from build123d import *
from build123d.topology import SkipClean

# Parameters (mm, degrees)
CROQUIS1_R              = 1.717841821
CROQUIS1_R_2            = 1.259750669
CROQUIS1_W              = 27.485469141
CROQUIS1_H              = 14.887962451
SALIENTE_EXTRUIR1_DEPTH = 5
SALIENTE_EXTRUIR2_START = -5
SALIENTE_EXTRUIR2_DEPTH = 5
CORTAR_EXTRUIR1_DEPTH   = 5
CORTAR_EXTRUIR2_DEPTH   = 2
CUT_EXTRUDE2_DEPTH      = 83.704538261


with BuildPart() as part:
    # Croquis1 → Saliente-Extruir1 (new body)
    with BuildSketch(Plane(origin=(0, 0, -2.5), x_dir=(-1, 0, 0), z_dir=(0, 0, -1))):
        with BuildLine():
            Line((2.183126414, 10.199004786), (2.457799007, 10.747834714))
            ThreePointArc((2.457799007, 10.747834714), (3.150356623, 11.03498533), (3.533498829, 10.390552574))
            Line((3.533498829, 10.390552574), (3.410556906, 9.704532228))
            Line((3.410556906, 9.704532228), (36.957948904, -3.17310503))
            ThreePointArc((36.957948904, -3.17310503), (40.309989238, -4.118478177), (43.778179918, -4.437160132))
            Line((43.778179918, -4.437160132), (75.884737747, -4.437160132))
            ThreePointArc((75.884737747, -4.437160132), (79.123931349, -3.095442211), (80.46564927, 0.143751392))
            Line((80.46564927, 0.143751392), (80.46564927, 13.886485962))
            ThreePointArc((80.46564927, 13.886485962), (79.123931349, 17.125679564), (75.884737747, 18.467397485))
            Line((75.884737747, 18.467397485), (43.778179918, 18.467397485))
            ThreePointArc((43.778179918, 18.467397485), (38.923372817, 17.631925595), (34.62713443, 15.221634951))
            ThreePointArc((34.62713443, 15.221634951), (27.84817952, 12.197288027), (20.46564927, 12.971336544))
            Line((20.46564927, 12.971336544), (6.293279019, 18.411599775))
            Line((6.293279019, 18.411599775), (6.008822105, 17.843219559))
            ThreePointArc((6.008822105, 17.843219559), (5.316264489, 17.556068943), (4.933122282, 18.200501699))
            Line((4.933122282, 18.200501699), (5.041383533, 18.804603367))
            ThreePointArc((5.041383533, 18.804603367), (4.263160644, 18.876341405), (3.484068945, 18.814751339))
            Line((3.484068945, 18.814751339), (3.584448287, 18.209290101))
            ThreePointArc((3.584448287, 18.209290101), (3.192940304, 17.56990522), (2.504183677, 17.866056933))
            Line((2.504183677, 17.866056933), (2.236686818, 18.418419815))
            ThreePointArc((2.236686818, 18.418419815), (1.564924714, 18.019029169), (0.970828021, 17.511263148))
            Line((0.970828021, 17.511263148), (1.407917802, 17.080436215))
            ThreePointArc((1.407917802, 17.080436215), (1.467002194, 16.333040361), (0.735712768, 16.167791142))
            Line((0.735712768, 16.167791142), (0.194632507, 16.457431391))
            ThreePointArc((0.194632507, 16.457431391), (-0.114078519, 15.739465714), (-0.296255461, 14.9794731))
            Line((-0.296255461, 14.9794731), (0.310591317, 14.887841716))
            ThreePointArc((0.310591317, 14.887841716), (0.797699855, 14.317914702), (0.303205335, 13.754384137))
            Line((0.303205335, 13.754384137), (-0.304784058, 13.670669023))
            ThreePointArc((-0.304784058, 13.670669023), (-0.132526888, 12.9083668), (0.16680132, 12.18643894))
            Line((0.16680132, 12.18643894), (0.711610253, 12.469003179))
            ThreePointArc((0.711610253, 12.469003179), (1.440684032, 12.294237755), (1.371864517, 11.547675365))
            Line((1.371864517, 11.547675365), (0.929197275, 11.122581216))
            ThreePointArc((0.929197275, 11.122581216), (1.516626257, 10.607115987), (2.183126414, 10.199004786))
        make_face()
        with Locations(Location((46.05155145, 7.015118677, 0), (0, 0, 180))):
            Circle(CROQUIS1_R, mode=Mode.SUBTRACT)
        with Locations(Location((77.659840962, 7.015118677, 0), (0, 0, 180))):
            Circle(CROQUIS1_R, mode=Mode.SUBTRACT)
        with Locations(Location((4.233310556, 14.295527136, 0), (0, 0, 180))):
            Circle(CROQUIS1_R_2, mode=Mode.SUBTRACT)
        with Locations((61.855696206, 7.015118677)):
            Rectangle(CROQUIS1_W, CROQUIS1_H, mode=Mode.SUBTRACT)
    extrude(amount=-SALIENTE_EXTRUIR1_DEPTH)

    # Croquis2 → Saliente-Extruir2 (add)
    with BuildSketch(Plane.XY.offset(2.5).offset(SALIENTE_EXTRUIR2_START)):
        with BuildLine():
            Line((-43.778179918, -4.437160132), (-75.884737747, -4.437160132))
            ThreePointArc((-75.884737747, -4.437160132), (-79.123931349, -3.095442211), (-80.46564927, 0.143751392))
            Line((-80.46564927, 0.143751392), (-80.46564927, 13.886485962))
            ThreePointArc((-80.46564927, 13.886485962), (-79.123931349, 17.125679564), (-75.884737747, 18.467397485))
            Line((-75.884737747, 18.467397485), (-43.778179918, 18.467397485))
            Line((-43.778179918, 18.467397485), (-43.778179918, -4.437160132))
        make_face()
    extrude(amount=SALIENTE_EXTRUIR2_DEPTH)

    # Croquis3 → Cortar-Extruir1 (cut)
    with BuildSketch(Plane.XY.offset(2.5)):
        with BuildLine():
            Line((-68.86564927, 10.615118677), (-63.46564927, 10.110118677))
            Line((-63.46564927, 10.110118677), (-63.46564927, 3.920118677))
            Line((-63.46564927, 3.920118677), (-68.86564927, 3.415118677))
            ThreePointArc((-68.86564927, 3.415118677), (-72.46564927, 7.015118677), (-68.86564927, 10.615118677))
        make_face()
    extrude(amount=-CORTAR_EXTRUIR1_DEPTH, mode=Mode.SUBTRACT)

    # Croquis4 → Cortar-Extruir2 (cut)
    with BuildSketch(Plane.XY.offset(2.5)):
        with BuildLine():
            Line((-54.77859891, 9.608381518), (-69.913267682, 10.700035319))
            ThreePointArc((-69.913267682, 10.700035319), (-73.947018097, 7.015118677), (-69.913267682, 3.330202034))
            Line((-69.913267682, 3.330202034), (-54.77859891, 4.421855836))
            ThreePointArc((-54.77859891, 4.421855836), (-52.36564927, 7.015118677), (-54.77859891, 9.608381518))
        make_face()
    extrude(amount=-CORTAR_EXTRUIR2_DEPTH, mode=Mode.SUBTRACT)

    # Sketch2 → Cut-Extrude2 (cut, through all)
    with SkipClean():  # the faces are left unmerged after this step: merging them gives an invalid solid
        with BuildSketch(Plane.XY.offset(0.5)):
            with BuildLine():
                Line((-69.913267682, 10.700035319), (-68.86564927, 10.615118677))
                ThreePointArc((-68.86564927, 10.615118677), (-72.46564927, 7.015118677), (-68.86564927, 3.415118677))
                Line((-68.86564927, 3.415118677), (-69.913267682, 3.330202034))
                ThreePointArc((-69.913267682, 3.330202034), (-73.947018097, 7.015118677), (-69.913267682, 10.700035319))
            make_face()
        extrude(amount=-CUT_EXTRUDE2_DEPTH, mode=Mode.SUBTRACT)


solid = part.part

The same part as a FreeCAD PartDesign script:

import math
import FreeCAD as App
import Part
import Sketcher
Q = App.Units.Quantity


def add_polygon(sketch, points):
    """Adds a closed chain of lines whose ends are joined by coincident constraints."""
    first, n = sketch.GeometryCount, len(points)
    for a, b in zip(points, points[1:] + points[:1]):
        sketch.addGeometry(Part.LineSegment(App.Vector(*a, 0), App.Vector(*b, 0)), False)
    for i in range(n):
        sketch.addConstraint(Sketcher.Constraint("Coincident", first + i, 2, first + (i + 1) % n, 1))

doc = App.newDocument("Part")
body = doc.addObject("PartDesign::Body", "Body")

# Sketch on XY plane
sketch1 = body.newObject("Sketcher::SketchObject", "Sketch")
sketch1.AttachmentSupport = (doc.getObject("XY_Plane"), [""])
sketch1.MapMode = "FlatFace"
sketch1.AttachmentOffset = App.Placement(App.Vector(0, 0, -2.5), App.Rotation())
sketch1.addGeometry(Part.LineSegment(App.Vector(-2.2, 10.2, 0), App.Vector(-2.5, 10.7, 0)), False)  # 0
sketch1.addGeometry(Part.ArcOfCircle(Part.Circle(App.Vector(-3, 10.5, 0), App.Vector(0, 0, 1), 0.6), math.radians(27), math.radians(190)), False)  # 1
sketch1.addGeometry(Part.LineSegment(App.Vector(-3.5, 10.4, 0), App.Vector(-3.4, 9.7, 0)), False)  # 2
sketch1.addGeometry(Part.LineSegment(App.Vector(-3.4, 9.7, 0), App.Vector(-37, -3.2, 0)), False)  # 3
sketch1.addGeometry(Part.ArcOfCircle(Part.Circle(App.Vector(-43.8, 14.6, 0), App.Vector(0, 0, 1), 19), math.radians(-90), math.radians(-69)), False)  # 4
sketch1.addGeometry(Part.LineSegment(App.Vector(-43.8, -4.4, 0), App.Vector(-75.9, -4.4, 0)), False)  # 5
sketch1.addGeometry(Part.ArcOfCircle(Part.Circle(App.Vector(-75.9, 0.1, 0), App.Vector(0, 0, 1), 4.6), math.radians(180), math.radians(270)), False)  # 6
sketch1.addGeometry(Part.LineSegment(App.Vector(-80.5, 0.1, 0), App.Vector(-80.5, 13.9, 0)), False)  # 7
sketch1.addGeometry(Part.ArcOfCircle(Part.Circle(App.Vector(-75.9, 13.9, 0), App.Vector(0, 0, 1), 4.6), math.radians(90), math.radians(180)), False)  # 8
sketch1.addGeometry(Part.LineSegment(App.Vector(-75.9, 18.5, 0), App.Vector(-43.8, 18.5, 0)), False)  # 9
sketch1.addGeometry(Part.ArcOfCircle(Part.Circle(App.Vector(-43.8, 3.9, 0), App.Vector(0, 0, 1), 14.5), math.radians(51), math.radians(90)), False)  # 10
sketch1.addGeometry(Part.ArcOfCircle(Part.Circle(App.Vector(-25.6, 26.3, 0), App.Vector(0, 0, 1), 14.3), math.radians(-129), math.radians(-69)), False)  # 11
sketch1.addGeometry(Part.LineSegment(App.Vector(-20.5, 13, 0), App.Vector(-6.3, 18.4, 0)), False)  # 12
sketch1.addGeometry(Part.LineSegment(App.Vector(-6.3, 18.4, 0), App.Vector(-6, 17.8, 0)), False)  # 13
sketch1.addGeometry(Part.ArcOfCircle(Part.Circle(App.Vector(-5.5, 18.1, 0), App.Vector(0, 0, 1), 0.6), math.radians(-153), math.radians(10)), False)  # 14
sketch1.addGeometry(Part.LineSegment(App.Vector(-4.9, 18.2, 0), App.Vector(-5, 18.8, 0)), False)  # 15
sketch1.addGeometry(Part.ArcOfCircle(Part.Circle(App.Vector(-4.2, 14.3, 0), App.Vector(0, 0, 1), 4.6), math.radians(80.59), math.radians(100.16)), False)  # 16
sketch1.addGeometry(Part.LineSegment(App.Vector(-3.5, 18.8, 0), App.Vector(-3.6, 18.2, 0)), False)  # 17
sketch1.addGeometry(Part.ArcOfCircle(Part.Circle(App.Vector(-3, 18.1, 0), App.Vector(0, 0, 1), 0.6), math.radians(171), math.radians(334)), False)  # 18
sketch1.addGeometry(Part.LineSegment(App.Vector(-2.5, 17.9, 0), App.Vector(-2.2, 18.4, 0)), False)  # 19
sketch1.addGeometry(Part.ArcOfCircle(Part.Circle(App.Vector(-4.2, 14.3, 0), App.Vector(0, 0, 1), 4.6), math.radians(44.59), math.radians(64.16)), False)  # 20
sketch1.addGeometry(Part.LineSegment(App.Vector(-1, 17.5, 0), App.Vector(-1.4, 17.1, 0)), False)  # 21
sketch1.addGeometry(Part.ArcOfCircle(Part.Circle(App.Vector(-1, 16.7, 0), App.Vector(0, 0, 1), 0.6), math.radians(135), math.radians(298)), False)  # 22
sketch1.addGeometry(Part.LineSegment(App.Vector(-0.7, 16.2, 0), App.Vector(-0.2, 16.5, 0)), False)  # 23
sketch1.addGeometry(Part.ArcOfCircle(Part.Circle(App.Vector(-4.2, 14.3, 0), App.Vector(0, 0, 1), 4.6), math.radians(8.59), math.radians(28.16)), False)  # 24
sketch1.addGeometry(Part.LineSegment(App.Vector(0.3, 15, 0), App.Vector(-0.3, 14.9, 0)), False)  # 25
sketch1.addGeometry(Part.ArcOfCircle(Part.Circle(App.Vector(-0.2, 14.3, 0), App.Vector(0, 0, 1), 0.6), math.radians(99), math.radians(262)), False)  # 26
sketch1.addGeometry(Part.LineSegment(App.Vector(-0.3, 13.8, 0), App.Vector(0.3, 13.7, 0)), False)  # 27
sketch1.addGeometry(Part.ArcOfCircle(Part.Circle(App.Vector(-4.2, 14.3, 0), App.Vector(0, 0, 1), 4.6), math.radians(-27.41), math.radians(-7.84)), False)  # 28
sketch1.addGeometry(Part.LineSegment(App.Vector(-0.2, 12.2, 0), App.Vector(-0.7, 12.5, 0)), False)  # 29
sketch1.addGeometry(Part.ArcOfCircle(Part.Circle(App.Vector(-1, 12, 0), App.Vector(0, 0, 1), 0.6), math.radians(63), math.radians(226)), False)  # 30
sketch1.addGeometry(Part.LineSegment(App.Vector(-1.4, 11.5, 0), App.Vector(-0.9, 11.1, 0)), False)  # 31
sketch1.addGeometry(Part.ArcOfCircle(Part.Circle(App.Vector(-4.2, 14.3, 0), App.Vector(0, 0, 1), 4.6), math.radians(-63.41), math.radians(-43.84)), False)  # 32
sketch1.addGeometry(Part.Circle(App.Vector(-46.1, 7, 0), App.Vector(0, 0, 1), 1.7), False)  # 33
add_polygon(sketch1, [(-75.6, -0.4), (-48.1, -0.4), (-48.1, 14.5), (-75.6, 14.5)])  # lines 34-37
sketch1.addGeometry(Part.Circle(App.Vector(-77.7, 7, 0), App.Vector(0, 0, 1), 1.7), False)  # 38
sketch1.addGeometry(Part.Circle(App.Vector(-4.2, 14.3, 0), App.Vector(0, 0, 1), 1.3), False)  # 39
sketch1.addConstraint(Sketcher.Constraint("Tangent", 0, 2, 1, 1))
sketch1.addConstraint(Sketcher.Constraint("Tangent", 1, 2, 2, 1))
sketch1.addConstraint(Sketcher.Constraint("Coincident", 2, 2, 3, 1))
sketch1.addConstraint(Sketcher.Constraint("Tangent", 3, 2, 4, 2))
sketch1.addConstraint(Sketcher.Constraint("Tangent", 4, 1, 5, 1))
sketch1.addConstraint(Sketcher.Constraint("Tangent", 5, 2, 6, 2))
sketch1.addConstraint(Sketcher.Constraint("Tangent", 6, 1, 7, 1))
sketch1.addConstraint(Sketcher.Constraint("Tangent", 7, 2, 8, 2))
sketch1.addConstraint(Sketcher.Constraint("Tangent", 8, 1, 9, 1))
sketch1.addConstraint(Sketcher.Constraint("Tangent", 9, 2, 10, 2))
sketch1.addConstraint(Sketcher.Constraint("Tangent", 10, 1, 11, 1))
sketch1.addConstraint(Sketcher.Constraint("Tangent", 11, 2, 12, 1))
sketch1.addConstraint(Sketcher.Constraint("Coincident", 12, 2, 13, 1))
sketch1.addConstraint(Sketcher.Constraint("Tangent", 13, 2, 14, 1))
sketch1.addConstraint(Sketcher.Constraint("Tangent", 14, 2, 15, 1))
sketch1.addConstraint(Sketcher.Constraint("Coincident", 15, 2, 16, 2))
sketch1.addConstraint(Sketcher.Constraint("Coincident", 16, 1, 17, 1))
sketch1.addConstraint(Sketcher.Constraint("Tangent", 17, 2, 18, 1))
sketch1.addConstraint(Sketcher.Constraint("Tangent", 18, 2, 19, 1))
sketch1.addConstraint(Sketcher.Constraint("Coincident", 19, 2, 20, 2))
sketch1.addConstraint(Sketcher.Constraint("Coincident", 20, 1, 21, 1))
sketch1.addConstraint(Sketcher.Constraint("Tangent", 21, 2, 22, 1))
sketch1.addConstraint(Sketcher.Constraint("Tangent", 22, 2, 23, 1))
sketch1.addConstraint(Sketcher.Constraint("Coincident", 23, 2, 24, 2))
sketch1.addConstraint(Sketcher.Constraint("Coincident", 24, 1, 25, 1))
sketch1.addConstraint(Sketcher.Constraint("Tangent", 25, 2, 26, 1))
sketch1.addConstraint(Sketcher.Constraint("Tangent", 26, 2, 27, 1))
sketch1.addConstraint(Sketcher.Constraint("Coincident", 27, 2, 28, 2))
sketch1.addConstraint(Sketcher.Constraint("Coincident", 28, 1, 29, 1))
sketch1.addConstraint(Sketcher.Constraint("Tangent", 29, 2, 30, 1))
sketch1.addConstraint(Sketcher.Constraint("Tangent", 30, 2, 31, 1))
sketch1.addConstraint(Sketcher.Constraint("Coincident", 31, 2, 32, 2))
sketch1.addConstraint(Sketcher.Constraint("Coincident", 32, 1, 0, 1))
sketch1.addConstraint(Sketcher.Constraint("Horizontal", 5))
sketch1.addConstraint(Sketcher.Constraint("Vertical", 7))
sketch1.addConstraint(Sketcher.Constraint("Horizontal", 9))
sketch1.addConstraint(Sketcher.Constraint("Horizontal", 34))
sketch1.addConstraint(Sketcher.Constraint("Vertical", 35))
sketch1.addConstraint(Sketcher.Constraint("Horizontal", 36))
sketch1.addConstraint(Sketcher.Constraint("Vertical", 37))
sketch1.addConstraint(Sketcher.Constraint("Coincident", 20, 3, 16, 3))
sketch1.addConstraint(Sketcher.Constraint("Coincident", 24, 3, 16, 3))
sketch1.addConstraint(Sketcher.Constraint("Coincident", 28, 3, 16, 3))
sketch1.addConstraint(Sketcher.Constraint("Coincident", 32, 3, 16, 3))
sketch1.addConstraint(Sketcher.Constraint("Coincident", 39, 3, 16, 3))
sketch1.addConstraint(Sketcher.Constraint("Equal", 6, 8))
sketch1.addConstraint(Sketcher.Constraint("Equal", 1, 14))
sketch1.addConstraint(Sketcher.Constraint("Equal", 8, 16))
sketch1.addConstraint(Sketcher.Constraint("Equal", 14, 18))
sketch1.addConstraint(Sketcher.Constraint("Equal", 16, 20))
sketch1.addConstraint(Sketcher.Constraint("Equal", 18, 22))
sketch1.addConstraint(Sketcher.Constraint("Equal", 20, 24))
sketch1.addConstraint(Sketcher.Constraint("Equal", 22, 26))
sketch1.addConstraint(Sketcher.Constraint("Equal", 24, 28))
sketch1.addConstraint(Sketcher.Constraint("Equal", 26, 30))
sketch1.addConstraint(Sketcher.Constraint("Equal", 28, 32))
sketch1.addConstraint(Sketcher.Constraint("Equal", 33, 38))
sketch1.addConstraint(Sketcher.Constraint("Parallel", 3, 12))
sketch1.addConstraint(Sketcher.Constraint("Parallel", 0, 13))
sketch1.addConstraint(Sketcher.Constraint("Parallel", 2, 15))
sketch1.addConstraint(Sketcher.Constraint("Horizontal", 33, 3, 38, 3))
sketch1.addConstraint(Sketcher.Constraint("Vertical", 4, 3, 10, 3))
sketch1.addConstraint(Sketcher.Constraint("Equal", 0, 15))
sketch1.addConstraint(Sketcher.Constraint("Equal", 15, 17))
sketch1.addConstraint(Sketcher.Constraint("Equal", 17, 19))
sketch1.addConstraint(Sketcher.Constraint("Equal", 19, 21))
sketch1.addConstraint(Sketcher.Constraint("Equal", 21, 23))
sketch1.addConstraint(Sketcher.Constraint("Equal", 23, 25))
sketch1.addConstraint(Sketcher.Constraint("Equal", 25, 27))
sketch1.addConstraint(Sketcher.Constraint("Equal", 27, 29))
sketch1.addConstraint(Sketcher.Constraint("Equal", 29, 31))
sketch1.addConstraint(Sketcher.Constraint("Angle", 3, Q("-159 deg")))
sketch1.addConstraint(Sketcher.Constraint("Diameter", 39, 2.519501))
sketch1.addConstraint(Sketcher.Constraint("Radius", 6, 4.580912))
sketch1.addConstraint(Sketcher.Constraint("Radius", 10, 14.523029))
sketch1.addConstraint(Sketcher.Constraint("Diameter", 33, 3.435684))
sketch1.addConstraint(Sketcher.Constraint("Radius", 1, 0.572614))
sketch1.addConstraint(Sketcher.Constraint("Radius", 4, 19.031364))
sketch1.addConstraint(Sketcher.Constraint("Radius", 11, 14.326617))
sketch1.addConstraint(Sketcher.Constraint("DistanceX", 1, 3, 30, 2, 1.598))
sketch1.addConstraint(Sketcher.Constraint("DistanceX", 34, 1, 34, 2, 27.485469))
sketch1.addConstraint(Sketcher.Constraint("DistanceX", 26, 3, -1, 1, 0.225098))
sketch1.addConstraint(Sketcher.Constraint("DistanceX", 0, 2, -1, 1, 2.457799))
sketch1.addConstraint(Sketcher.Constraint("DistanceX", 1, 2, -1, 1, 3.533499))
sketch1.addConstraint(Sketcher.Constraint("DistanceY", -1, 1, 12, 2, 18.4116))
sketch1.addConstraint(Sketcher.Constraint("DistanceY", -1, 1, 14, 2, 18.200502))
sketch1.addConstraint(Sketcher.Constraint("DistanceX", 28, 1, -1, 1, 0.166801))
sketch1.addConstraint(Sketcher.Constraint("DistanceY", -1, 1, 35, 2, 14.4591))
sketch1.addConstraint(Sketcher.Constraint("DistanceY", 8, 3, 11, 3, 12.4599))
sketch1.addConstraint(Sketcher.Constraint("DistanceY", 16, 3, 22, 3, 2.377099))
sketch1.addConstraint(Sketcher.Constraint("DistanceX", 33, 3, 11, 3, 20.451702))
sketch1.addConstraint(Sketcher.Constraint("DistanceY", 14, 2, 15, 2, 0.604102))
sketch1.addConstraint(Sketcher.Constraint("DistanceY", 21, 2, 18, 3, 1.035199))
sketch1.addConstraint(Sketcher.Constraint("DistanceX", 0, 2, 31, 2, 1.528602))
sketch1.addConstraint(Sketcher.Constraint("Distance", 2, 0.69695))
sketch1.addConstraint(Sketcher.Constraint("Distance", 3, 35.934121))
sketch1.addConstraint(Sketcher.Constraint("DistanceX", 5, 2, 5, 1, 32.106558))
sketch1.addConstraint(Sketcher.Constraint("DistanceY", 7, 1, 7, 2, 13.742735))
sketch1.addConstraint(Sketcher.Constraint("DistanceY", 35, 1, 35, 2, 14.887962))
sketch1.addConstraint(Sketcher.Constraint("DistanceY", -1, 1, 1, 3, 10.491562))
sketch1.addConstraint(Sketcher.Constraint("DistanceX", 22, 3, -1, 1, 1.005951))
sketch1.addConstraint(Sketcher.Constraint("DistanceY", -1, 1, 33, 3, 7.015119))
sketch1.addConstraint(Sketcher.Constraint("DistanceX", 38, 3, -1, 1, 77.659841))
sketch1.addConstraint(Sketcher.Constraint("DistanceX", 16, 1, -1, 1, 3.484069))
sketch1.addConstraint(Sketcher.Constraint("DistanceX", 25, 2, -1, 1, 0.310591))
sketch1.addConstraint(Sketcher.Constraint("DistanceX", 34, 2, -1, 1, 48.112962))
pad1 = body.newObject("PartDesign::Pad", "Pad")
pad1.Profile = sketch1
pad1.Length = 5

# Sketch on XY plane
sketch2 = body.newObject("Sketcher::SketchObject", "Sketch001")
sketch2.AttachmentSupport = (doc.getObject("XY_Plane"), [""])
sketch2.MapMode = "FlatFace"
sketch2.AttachmentOffset = App.Placement(App.Vector(0, 0, -2.5), App.Rotation())
sketch2.addGeometry(Part.LineSegment(App.Vector(-75.9, -4.4, 0), App.Vector(-43.8, -4.4, 0)), False)
sketch2.addGeometry(Part.LineSegment(App.Vector(-43.8, -4.4, 0), App.Vector(-43.8, 18.5, 0)), False)
sketch2.addGeometry(Part.LineSegment(App.Vector(-43.8, 18.5, 0), App.Vector(-75.9, 18.5, 0)), False)
sketch2.addGeometry(Part.ArcOfCircle(Part.Circle(App.Vector(-75.9, 13.9, 0), App.Vector(0, 0, 1), 4.6), math.radians(90), math.radians(180)), False)
sketch2.addGeometry(Part.LineSegment(App.Vector(-80.5, 13.9, 0), App.Vector(-80.5, 0.1, 0)), False)
sketch2.addGeometry(Part.ArcOfCircle(Part.Circle(App.Vector(-75.9, 0.1, 0), App.Vector(0, 0, 1), 4.6), math.radians(180), math.radians(270)), False)
sketch2.addConstraint(Sketcher.Constraint("Coincident", 0, 2, 1, 1))
sketch2.addConstraint(Sketcher.Constraint("Coincident", 1, 2, 2, 1))
sketch2.addConstraint(Sketcher.Constraint("Tangent", 2, 2, 3, 1))
sketch2.addConstraint(Sketcher.Constraint("Tangent", 3, 2, 4, 1))
sketch2.addConstraint(Sketcher.Constraint("Tangent", 4, 2, 5, 1))
sketch2.addConstraint(Sketcher.Constraint("Tangent", 5, 2, 0, 1))
sketch2.addConstraint(Sketcher.Constraint("Horizontal", 0))
sketch2.addConstraint(Sketcher.Constraint("Vertical", 1))
sketch2.addConstraint(Sketcher.Constraint("Horizontal", 2))
sketch2.addConstraint(Sketcher.Constraint("Vertical", 4))
sketch2.addConstraint(Sketcher.Constraint("Equal", 3, 5))
sketch2.addConstraint(Sketcher.Constraint("Radius", 3, 4.580912))
sketch2.addConstraint(Sketcher.Constraint("DistanceX", 0, 1, 0, 2, 32.106558))
sketch2.addConstraint(Sketcher.Constraint("DistanceY", 1, 1, 1, 2, 22.904558))
sketch2.addConstraint(Sketcher.Constraint("DistanceY", -1, 1, 5, 3, 0.143751))
sketch2.addConstraint(Sketcher.Constraint("DistanceX", 0, 2, -1, 1, 43.77818))
pad2 = body.newObject("PartDesign::Pad", "Pad001")
pad2.Profile = sketch2
pad2.Length = 5

# Sketch on XY plane
sketch3 = body.newObject("Sketcher::SketchObject", "Sketch002")
sketch3.AttachmentSupport = (doc.getObject("XY_Plane"), [""])
sketch3.MapMode = "FlatFace"
sketch3.AttachmentOffset = App.Placement(App.Vector(0, 0, 2.5), App.Rotation())
sketch3.addGeometry(Part.LineSegment(App.Vector(-63.5, 10.1, 0), App.Vector(-68.9, 10.6, 0)), False)
sketch3.addGeometry(Part.ArcOfCircle(Part.Circle(App.Vector(-68.9, 7, 0), App.Vector(0, 0, 1), 3.6), math.radians(90), math.radians(270)), False)
sketch3.addGeometry(Part.LineSegment(App.Vector(-68.9, 3.4, 0), App.Vector(-63.5, 3.9, 0)), False)
sketch3.addGeometry(Part.LineSegment(App.Vector(-63.5, 3.9, 0), App.Vector(-63.5, 10.1, 0)), False)
sketch3.addConstraint(Sketcher.Constraint("Coincident", 0, 2, 1, 1))
sketch3.addConstraint(Sketcher.Constraint("Coincident", 1, 2, 2, 1))
sketch3.addConstraint(Sketcher.Constraint("Coincident", 2, 2, 3, 1))
sketch3.addConstraint(Sketcher.Constraint("Coincident", 3, 2, 0, 1))
sketch3.addConstraint(Sketcher.Constraint("Vertical", 3))
sketch3.addConstraint(Sketcher.Constraint("Vertical", 1, 3, 0, 2))
sketch3.addConstraint(Sketcher.Constraint("Vertical", 0, 2, 1, 2))
sketch3.addConstraint(Sketcher.Constraint("Equal", 0, 2))
sketch3.addConstraint(Sketcher.Constraint("Radius", 1, 3.6))
sketch3.addConstraint(Sketcher.Constraint("DistanceY", 3, 1, 3, 2, 6.19))
sketch3.addConstraint(Sketcher.Constraint("DistanceX", 1, 2, 2, 2, 5.4))
sketch3.addConstraint(Sketcher.Constraint("DistanceX", 1, 3, -1, 1, 68.865649))
sketch3.addConstraint(Sketcher.Constraint("DistanceY", -1, 1, 1, 3, 7.015119))
pocket1 = body.newObject("PartDesign::Pocket", "Pocket")
pocket1.Profile = sketch3
pocket1.Length = 5

# Sketch on XY plane
sketch4 = body.newObject("Sketcher::SketchObject", "Sketch003")
sketch4.AttachmentSupport = (doc.getObject("XY_Plane"), [""])
sketch4.MapMode = "FlatFace"
sketch4.AttachmentOffset = App.Placement(App.Vector(0, 0, 2.5), App.Rotation())
sketch4.addGeometry(Part.LineSegment(App.Vector(-54.778599, 9.608382, 0), App.Vector(-69.913268, 10.700035, 0)), False)
sketch4.addGeometry(Part.ArcOfCircle(Part.Circle(App.Vector(-70.247018, 7.015119, 0), App.Vector(0, 0, 1), 3.7), math.radians(84.824725), math.radians(275.175275)), False)
sketch4.addGeometry(Part.LineSegment(App.Vector(-69.913268, 3.330202, 0), App.Vector(-54.778599, 4.421856, 0)), False)
sketch4.addGeometry(Part.ArcOfCircle(Part.Circle(App.Vector(-54.965649, 7.015119, 0), App.Vector(0, 0, 1), 2.6), math.radians(-85.874437), math.radians(85.874437)), False)
sketch4.addConstraint(Sketcher.Constraint("Coincident", 0, 2, 1, 1))
sketch4.addConstraint(Sketcher.Constraint("Coincident", 1, 2, 2, 1))
sketch4.addConstraint(Sketcher.Constraint("Coincident", 2, 2, 3, 1))
sketch4.addConstraint(Sketcher.Constraint("Coincident", 3, 2, 0, 1))
sketch4.addConstraint(Sketcher.Constraint("Radius", 1, 3.7))
sketch4.addConstraint(Sketcher.Constraint("Radius", 3, 2.6))
sketch4.addConstraint(Sketcher.Constraint("DistanceX", 2, 2, -1, 1, 54.778599))
sketch4.addConstraint(Sketcher.Constraint("DistanceX", 3, 2, -1, 1, 54.778599))
sketch4.addConstraint(Sketcher.Constraint("DistanceX", 1, 3, -1, 1, 70.247018))
sketch4.addConstraint(Sketcher.Constraint("DistanceY", -1, 1, 1, 3, 7.015119))
sketch4.addConstraint(Sketcher.Constraint("DistanceX", 3, 3, -1, 1, 54.965649))
sketch4.addConstraint(Sketcher.Constraint("DistanceY", -1, 1, 3, 3, 7.015119))
sketch4.addConstraint(Sketcher.Constraint("DistanceX", 1, 3, 0, 2, 0.33375))
sketch4.addConstraint(Sketcher.Constraint("DistanceX", 1, 3, 1, 2, 0.33375))
pocket2 = body.newObject("PartDesign::Pocket", "Pocket001")
pocket2.Profile = sketch4
pocket2.Length = 2

# Sketch on XY plane
sketch5 = body.newObject("Sketcher::SketchObject", "Sketch004")
sketch5.AttachmentSupport = (doc.getObject("XY_Plane"), [""])
sketch5.MapMode = "FlatFace"
sketch5.AttachmentOffset = App.Placement(App.Vector(0, 0, 0.5), App.Rotation())
sketch5.addGeometry(Part.LineSegment(App.Vector(-68.9, 10.6, 0), App.Vector(-69.9, 10.7, 0)), False)
sketch5.addGeometry(Part.ArcOfCircle(Part.Circle(App.Vector(-70.2, 7, 0), App.Vector(0, 0, 1), 3.7), math.radians(85), math.radians(275)), False)
sketch5.addGeometry(Part.LineSegment(App.Vector(-69.9, 3.3, 0), App.Vector(-68.9, 3.4, 0)), False)
sketch5.addGeometry(Part.ArcOfCircle(Part.Circle(App.Vector(-68.9, 7, 0), App.Vector(0, 0, 1), 3.6), math.radians(90), math.radians(270)), False)
sketch5.addConstraint(Sketcher.Constraint("Coincident", 0, 2, 1, 1))
sketch5.addConstraint(Sketcher.Constraint("Coincident", 1, 2, 2, 1))
sketch5.addConstraint(Sketcher.Constraint("Coincident", 2, 2, 3, 2))
sketch5.addConstraint(Sketcher.Constraint("Coincident", 3, 1, 0, 1))
sketch5.addConstraint(Sketcher.Constraint("Horizontal", 1, 3, 3, 3))
sketch5.addConstraint(Sketcher.Constraint("Vertical", 0, 2, 1, 2))
sketch5.addConstraint(Sketcher.Constraint("Vertical", 3, 3, 2, 2))
sketch5.addConstraint(Sketcher.Constraint("Vertical", 2, 2, 3, 1))
sketch5.addConstraint(Sketcher.Constraint("Radius", 1, 3.7))
sketch5.addConstraint(Sketcher.Constraint("Radius", 3, 3.6))
sketch5.addConstraint(Sketcher.Constraint("DistanceX", 1, 3, -1, 1, 70.247018))
sketch5.addConstraint(Sketcher.Constraint("DistanceY", -1, 1, 1, 3, 7.015119))
sketch5.addConstraint(Sketcher.Constraint("DistanceX", 3, 3, -1, 1, 68.865649))
sketch5.addConstraint(Sketcher.Constraint("DistanceX", 1, 3, 0, 2, 0.33375))
pocket3 = body.newObject("PartDesign::Pocket", "Pocket002")
pocket3.Profile = sketch5
pocket3.Type = "ThroughAll"

doc.recompute()
